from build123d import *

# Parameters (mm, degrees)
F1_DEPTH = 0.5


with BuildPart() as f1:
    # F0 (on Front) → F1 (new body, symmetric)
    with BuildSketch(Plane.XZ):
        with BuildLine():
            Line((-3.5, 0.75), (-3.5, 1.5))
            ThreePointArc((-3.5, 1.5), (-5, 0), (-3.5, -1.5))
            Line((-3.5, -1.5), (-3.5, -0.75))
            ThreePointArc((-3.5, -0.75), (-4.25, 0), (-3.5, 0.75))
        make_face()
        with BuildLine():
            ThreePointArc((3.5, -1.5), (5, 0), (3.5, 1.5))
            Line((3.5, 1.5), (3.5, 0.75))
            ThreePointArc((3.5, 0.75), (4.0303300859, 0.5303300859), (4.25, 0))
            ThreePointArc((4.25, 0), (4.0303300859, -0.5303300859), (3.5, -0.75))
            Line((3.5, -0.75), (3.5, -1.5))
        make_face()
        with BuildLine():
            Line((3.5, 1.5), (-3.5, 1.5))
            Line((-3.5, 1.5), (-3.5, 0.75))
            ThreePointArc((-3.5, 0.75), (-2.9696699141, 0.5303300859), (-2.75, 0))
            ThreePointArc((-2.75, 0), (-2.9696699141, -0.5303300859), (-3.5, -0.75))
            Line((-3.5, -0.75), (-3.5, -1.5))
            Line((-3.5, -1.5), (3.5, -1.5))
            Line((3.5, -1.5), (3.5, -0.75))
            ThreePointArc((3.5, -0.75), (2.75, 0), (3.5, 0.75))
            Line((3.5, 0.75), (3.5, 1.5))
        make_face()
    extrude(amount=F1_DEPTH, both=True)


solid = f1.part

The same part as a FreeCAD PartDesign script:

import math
import FreeCAD as App
import Part
import Sketcher

doc = App.newDocument("Part")
body = doc.addObject("PartDesign::Body", "Body")

# Sketch on XZ plane
sketch1 = doc.addObject("Sketcher::SketchObject", "Sketch")
body.addObject(sketch1)
sketch1.AttachmentSupport = (doc.XZ_Plane, [""])
sketch1.MapMode = "FlatFace"
sketch1.addGeometry(Part.ArcOfCircle(Part.Circle(App.Vector(-3.5, 0, 0), App.Vector(0, 0, 1), 1.5), math.radians(90), math.radians(270)), False)
sketch1.addGeometry(Part.LineSegment(App.Vector(-3.5, -1.5, 0), App.Vector(3.5, -1.5, 0)), False)
sketch1.addGeometry(Part.ArcOfCircle(Part.Circle(App.Vector(3.5, 0, 0), App.Vector(0, 0, 1), 1.5), math.radians(-90), math.radians(90)), False)
sketch1.addGeometry(Part.LineSegment(App.Vector(3.5, 1.5, 0), App.Vector(-3.5, 1.5, 0)), False)
sketch1.addGeometry(Part.ArcOfCircle(Part.Circle(App.Vector(-3.5, 0, 0), App.Vector(0, 0, 1), 0.8), math.radians(90), math.radians(270)), False)
sketch1.addGeometry(Part.ArcOfCircle(Part.Circle(App.Vector(-3.5, 0, 0), App.Vector(0, 0, 1), 0.8), math.radians(0), math.radians(90)), False)
sketch1.addGeometry(Part.ArcOfCircle(Part.Circle(App.Vector(-3.5, 0, 0), App.Vector(0, 0, 1), 0.8), math.radians(-90), math.radians(0)), False)
sketch1.addGeometry(Part.ArcOfCircle(Part.Circle(App.Vector(3.5, 0, 0), App.Vector(0, 0, 1), 0.8), math.radians(90), math.radians(270)), False)
sketch1.addGeometry(Part.ArcOfCircle(Part.Circle(App.Vector(3.5, 0, 0), App.Vector(0, 0, 1), 0.8), math.radians(0), math.radians(90)), False)
sketch1.addGeometry(Part.ArcOfCircle(Part.Circle(App.Vector(3.5, 0, 0), App.Vector(0, 0, 1), 0.8), math.radians(-90), math.radians(0)), False)
sketch1.addConstraint(Sketcher.Constraint("Tangent", 0, 2, 1, 1))
sketch1.addConstraint(Sketcher.Constraint("Tangent", 1, 2, 2, 1))
sketch1.addConstraint(Sketcher.Constraint("Tangent", 2, 2, 3, 1))
sketch1.addConstraint(Sketcher.Constraint("Tangent", 3, 2, 0, 1))
sketch1.addConstraint(Sketcher.Constraint("Tangent", 4, 1, 5, 2))
sketch1.addConstraint(Sketcher.Constraint("Tangent", 5, 1, 6, 2))
sketch1.addConstraint(Sketcher.Constraint("Tangent", 6, 1, 4, 2))
sketch1.addConstraint(Sketcher.Constraint("Tangent", 7, 1, 8, 2))
sketch1.addConstraint(Sketcher.Constraint("Tangent", 8, 1, 9, 2))
sketch1.addConstraint(Sketcher.Constraint("Tangent", 9, 1, 7, 2))
sketch1.addConstraint(Sketcher.Constraint("Horizontal", 1))
sketch1.addConstraint(Sketcher.Constraint("Horizontal", 3))
sketch1.addConstraint(Sketcher.Constraint("Coincident", 4, 3, 0, 3))
sketch1.addConstraint(Sketcher.Constraint("Coincident", 7, 3, 2, 3))
sketch1.addConstraint(Sketcher.Constraint("Equal", 6, 7))
sketch1.addConstraint(Sketcher.Constraint("Symmetric", 0, 3, 2, 3, -1, 1))
sketch1.addConstraint(Sketcher.Constraint("PointOnObject", 5, 1, -1))
sketch1.addConstraint(Sketcher.Constraint("PointOnObject", 8, 1, -1))
sketch1.addConstraint(Sketcher.Constraint("Vertical", 3, 2, 4, 1))
sketch1.addConstraint(Sketcher.Constraint("Vertical", 4, 1, 6, 1))
sketch1.addConstraint(Sketcher.Constraint("Vertical", 2, 2, 7, 1))
sketch1.addConstraint(Sketcher.Constraint("Vertical", 7, 1, 9, 1))
sketch1.addConstraint(Sketcher.Constraint("Radius", 0, 1.5))
sketch1.addConstraint(Sketcher.Constraint("DistanceX", 1, 1, 1, 2, 7.0))
sketch1.addConstraint(Sketcher.Constraint("Radius", 4, 0.75))
pad1 = doc.addObject("PartDesign::Pad", "Pad")
body.addObject(pad1)
pad1.Profile = sketch1
pad1.Length = 1
pad1.Midplane = True

doc.recompute()
